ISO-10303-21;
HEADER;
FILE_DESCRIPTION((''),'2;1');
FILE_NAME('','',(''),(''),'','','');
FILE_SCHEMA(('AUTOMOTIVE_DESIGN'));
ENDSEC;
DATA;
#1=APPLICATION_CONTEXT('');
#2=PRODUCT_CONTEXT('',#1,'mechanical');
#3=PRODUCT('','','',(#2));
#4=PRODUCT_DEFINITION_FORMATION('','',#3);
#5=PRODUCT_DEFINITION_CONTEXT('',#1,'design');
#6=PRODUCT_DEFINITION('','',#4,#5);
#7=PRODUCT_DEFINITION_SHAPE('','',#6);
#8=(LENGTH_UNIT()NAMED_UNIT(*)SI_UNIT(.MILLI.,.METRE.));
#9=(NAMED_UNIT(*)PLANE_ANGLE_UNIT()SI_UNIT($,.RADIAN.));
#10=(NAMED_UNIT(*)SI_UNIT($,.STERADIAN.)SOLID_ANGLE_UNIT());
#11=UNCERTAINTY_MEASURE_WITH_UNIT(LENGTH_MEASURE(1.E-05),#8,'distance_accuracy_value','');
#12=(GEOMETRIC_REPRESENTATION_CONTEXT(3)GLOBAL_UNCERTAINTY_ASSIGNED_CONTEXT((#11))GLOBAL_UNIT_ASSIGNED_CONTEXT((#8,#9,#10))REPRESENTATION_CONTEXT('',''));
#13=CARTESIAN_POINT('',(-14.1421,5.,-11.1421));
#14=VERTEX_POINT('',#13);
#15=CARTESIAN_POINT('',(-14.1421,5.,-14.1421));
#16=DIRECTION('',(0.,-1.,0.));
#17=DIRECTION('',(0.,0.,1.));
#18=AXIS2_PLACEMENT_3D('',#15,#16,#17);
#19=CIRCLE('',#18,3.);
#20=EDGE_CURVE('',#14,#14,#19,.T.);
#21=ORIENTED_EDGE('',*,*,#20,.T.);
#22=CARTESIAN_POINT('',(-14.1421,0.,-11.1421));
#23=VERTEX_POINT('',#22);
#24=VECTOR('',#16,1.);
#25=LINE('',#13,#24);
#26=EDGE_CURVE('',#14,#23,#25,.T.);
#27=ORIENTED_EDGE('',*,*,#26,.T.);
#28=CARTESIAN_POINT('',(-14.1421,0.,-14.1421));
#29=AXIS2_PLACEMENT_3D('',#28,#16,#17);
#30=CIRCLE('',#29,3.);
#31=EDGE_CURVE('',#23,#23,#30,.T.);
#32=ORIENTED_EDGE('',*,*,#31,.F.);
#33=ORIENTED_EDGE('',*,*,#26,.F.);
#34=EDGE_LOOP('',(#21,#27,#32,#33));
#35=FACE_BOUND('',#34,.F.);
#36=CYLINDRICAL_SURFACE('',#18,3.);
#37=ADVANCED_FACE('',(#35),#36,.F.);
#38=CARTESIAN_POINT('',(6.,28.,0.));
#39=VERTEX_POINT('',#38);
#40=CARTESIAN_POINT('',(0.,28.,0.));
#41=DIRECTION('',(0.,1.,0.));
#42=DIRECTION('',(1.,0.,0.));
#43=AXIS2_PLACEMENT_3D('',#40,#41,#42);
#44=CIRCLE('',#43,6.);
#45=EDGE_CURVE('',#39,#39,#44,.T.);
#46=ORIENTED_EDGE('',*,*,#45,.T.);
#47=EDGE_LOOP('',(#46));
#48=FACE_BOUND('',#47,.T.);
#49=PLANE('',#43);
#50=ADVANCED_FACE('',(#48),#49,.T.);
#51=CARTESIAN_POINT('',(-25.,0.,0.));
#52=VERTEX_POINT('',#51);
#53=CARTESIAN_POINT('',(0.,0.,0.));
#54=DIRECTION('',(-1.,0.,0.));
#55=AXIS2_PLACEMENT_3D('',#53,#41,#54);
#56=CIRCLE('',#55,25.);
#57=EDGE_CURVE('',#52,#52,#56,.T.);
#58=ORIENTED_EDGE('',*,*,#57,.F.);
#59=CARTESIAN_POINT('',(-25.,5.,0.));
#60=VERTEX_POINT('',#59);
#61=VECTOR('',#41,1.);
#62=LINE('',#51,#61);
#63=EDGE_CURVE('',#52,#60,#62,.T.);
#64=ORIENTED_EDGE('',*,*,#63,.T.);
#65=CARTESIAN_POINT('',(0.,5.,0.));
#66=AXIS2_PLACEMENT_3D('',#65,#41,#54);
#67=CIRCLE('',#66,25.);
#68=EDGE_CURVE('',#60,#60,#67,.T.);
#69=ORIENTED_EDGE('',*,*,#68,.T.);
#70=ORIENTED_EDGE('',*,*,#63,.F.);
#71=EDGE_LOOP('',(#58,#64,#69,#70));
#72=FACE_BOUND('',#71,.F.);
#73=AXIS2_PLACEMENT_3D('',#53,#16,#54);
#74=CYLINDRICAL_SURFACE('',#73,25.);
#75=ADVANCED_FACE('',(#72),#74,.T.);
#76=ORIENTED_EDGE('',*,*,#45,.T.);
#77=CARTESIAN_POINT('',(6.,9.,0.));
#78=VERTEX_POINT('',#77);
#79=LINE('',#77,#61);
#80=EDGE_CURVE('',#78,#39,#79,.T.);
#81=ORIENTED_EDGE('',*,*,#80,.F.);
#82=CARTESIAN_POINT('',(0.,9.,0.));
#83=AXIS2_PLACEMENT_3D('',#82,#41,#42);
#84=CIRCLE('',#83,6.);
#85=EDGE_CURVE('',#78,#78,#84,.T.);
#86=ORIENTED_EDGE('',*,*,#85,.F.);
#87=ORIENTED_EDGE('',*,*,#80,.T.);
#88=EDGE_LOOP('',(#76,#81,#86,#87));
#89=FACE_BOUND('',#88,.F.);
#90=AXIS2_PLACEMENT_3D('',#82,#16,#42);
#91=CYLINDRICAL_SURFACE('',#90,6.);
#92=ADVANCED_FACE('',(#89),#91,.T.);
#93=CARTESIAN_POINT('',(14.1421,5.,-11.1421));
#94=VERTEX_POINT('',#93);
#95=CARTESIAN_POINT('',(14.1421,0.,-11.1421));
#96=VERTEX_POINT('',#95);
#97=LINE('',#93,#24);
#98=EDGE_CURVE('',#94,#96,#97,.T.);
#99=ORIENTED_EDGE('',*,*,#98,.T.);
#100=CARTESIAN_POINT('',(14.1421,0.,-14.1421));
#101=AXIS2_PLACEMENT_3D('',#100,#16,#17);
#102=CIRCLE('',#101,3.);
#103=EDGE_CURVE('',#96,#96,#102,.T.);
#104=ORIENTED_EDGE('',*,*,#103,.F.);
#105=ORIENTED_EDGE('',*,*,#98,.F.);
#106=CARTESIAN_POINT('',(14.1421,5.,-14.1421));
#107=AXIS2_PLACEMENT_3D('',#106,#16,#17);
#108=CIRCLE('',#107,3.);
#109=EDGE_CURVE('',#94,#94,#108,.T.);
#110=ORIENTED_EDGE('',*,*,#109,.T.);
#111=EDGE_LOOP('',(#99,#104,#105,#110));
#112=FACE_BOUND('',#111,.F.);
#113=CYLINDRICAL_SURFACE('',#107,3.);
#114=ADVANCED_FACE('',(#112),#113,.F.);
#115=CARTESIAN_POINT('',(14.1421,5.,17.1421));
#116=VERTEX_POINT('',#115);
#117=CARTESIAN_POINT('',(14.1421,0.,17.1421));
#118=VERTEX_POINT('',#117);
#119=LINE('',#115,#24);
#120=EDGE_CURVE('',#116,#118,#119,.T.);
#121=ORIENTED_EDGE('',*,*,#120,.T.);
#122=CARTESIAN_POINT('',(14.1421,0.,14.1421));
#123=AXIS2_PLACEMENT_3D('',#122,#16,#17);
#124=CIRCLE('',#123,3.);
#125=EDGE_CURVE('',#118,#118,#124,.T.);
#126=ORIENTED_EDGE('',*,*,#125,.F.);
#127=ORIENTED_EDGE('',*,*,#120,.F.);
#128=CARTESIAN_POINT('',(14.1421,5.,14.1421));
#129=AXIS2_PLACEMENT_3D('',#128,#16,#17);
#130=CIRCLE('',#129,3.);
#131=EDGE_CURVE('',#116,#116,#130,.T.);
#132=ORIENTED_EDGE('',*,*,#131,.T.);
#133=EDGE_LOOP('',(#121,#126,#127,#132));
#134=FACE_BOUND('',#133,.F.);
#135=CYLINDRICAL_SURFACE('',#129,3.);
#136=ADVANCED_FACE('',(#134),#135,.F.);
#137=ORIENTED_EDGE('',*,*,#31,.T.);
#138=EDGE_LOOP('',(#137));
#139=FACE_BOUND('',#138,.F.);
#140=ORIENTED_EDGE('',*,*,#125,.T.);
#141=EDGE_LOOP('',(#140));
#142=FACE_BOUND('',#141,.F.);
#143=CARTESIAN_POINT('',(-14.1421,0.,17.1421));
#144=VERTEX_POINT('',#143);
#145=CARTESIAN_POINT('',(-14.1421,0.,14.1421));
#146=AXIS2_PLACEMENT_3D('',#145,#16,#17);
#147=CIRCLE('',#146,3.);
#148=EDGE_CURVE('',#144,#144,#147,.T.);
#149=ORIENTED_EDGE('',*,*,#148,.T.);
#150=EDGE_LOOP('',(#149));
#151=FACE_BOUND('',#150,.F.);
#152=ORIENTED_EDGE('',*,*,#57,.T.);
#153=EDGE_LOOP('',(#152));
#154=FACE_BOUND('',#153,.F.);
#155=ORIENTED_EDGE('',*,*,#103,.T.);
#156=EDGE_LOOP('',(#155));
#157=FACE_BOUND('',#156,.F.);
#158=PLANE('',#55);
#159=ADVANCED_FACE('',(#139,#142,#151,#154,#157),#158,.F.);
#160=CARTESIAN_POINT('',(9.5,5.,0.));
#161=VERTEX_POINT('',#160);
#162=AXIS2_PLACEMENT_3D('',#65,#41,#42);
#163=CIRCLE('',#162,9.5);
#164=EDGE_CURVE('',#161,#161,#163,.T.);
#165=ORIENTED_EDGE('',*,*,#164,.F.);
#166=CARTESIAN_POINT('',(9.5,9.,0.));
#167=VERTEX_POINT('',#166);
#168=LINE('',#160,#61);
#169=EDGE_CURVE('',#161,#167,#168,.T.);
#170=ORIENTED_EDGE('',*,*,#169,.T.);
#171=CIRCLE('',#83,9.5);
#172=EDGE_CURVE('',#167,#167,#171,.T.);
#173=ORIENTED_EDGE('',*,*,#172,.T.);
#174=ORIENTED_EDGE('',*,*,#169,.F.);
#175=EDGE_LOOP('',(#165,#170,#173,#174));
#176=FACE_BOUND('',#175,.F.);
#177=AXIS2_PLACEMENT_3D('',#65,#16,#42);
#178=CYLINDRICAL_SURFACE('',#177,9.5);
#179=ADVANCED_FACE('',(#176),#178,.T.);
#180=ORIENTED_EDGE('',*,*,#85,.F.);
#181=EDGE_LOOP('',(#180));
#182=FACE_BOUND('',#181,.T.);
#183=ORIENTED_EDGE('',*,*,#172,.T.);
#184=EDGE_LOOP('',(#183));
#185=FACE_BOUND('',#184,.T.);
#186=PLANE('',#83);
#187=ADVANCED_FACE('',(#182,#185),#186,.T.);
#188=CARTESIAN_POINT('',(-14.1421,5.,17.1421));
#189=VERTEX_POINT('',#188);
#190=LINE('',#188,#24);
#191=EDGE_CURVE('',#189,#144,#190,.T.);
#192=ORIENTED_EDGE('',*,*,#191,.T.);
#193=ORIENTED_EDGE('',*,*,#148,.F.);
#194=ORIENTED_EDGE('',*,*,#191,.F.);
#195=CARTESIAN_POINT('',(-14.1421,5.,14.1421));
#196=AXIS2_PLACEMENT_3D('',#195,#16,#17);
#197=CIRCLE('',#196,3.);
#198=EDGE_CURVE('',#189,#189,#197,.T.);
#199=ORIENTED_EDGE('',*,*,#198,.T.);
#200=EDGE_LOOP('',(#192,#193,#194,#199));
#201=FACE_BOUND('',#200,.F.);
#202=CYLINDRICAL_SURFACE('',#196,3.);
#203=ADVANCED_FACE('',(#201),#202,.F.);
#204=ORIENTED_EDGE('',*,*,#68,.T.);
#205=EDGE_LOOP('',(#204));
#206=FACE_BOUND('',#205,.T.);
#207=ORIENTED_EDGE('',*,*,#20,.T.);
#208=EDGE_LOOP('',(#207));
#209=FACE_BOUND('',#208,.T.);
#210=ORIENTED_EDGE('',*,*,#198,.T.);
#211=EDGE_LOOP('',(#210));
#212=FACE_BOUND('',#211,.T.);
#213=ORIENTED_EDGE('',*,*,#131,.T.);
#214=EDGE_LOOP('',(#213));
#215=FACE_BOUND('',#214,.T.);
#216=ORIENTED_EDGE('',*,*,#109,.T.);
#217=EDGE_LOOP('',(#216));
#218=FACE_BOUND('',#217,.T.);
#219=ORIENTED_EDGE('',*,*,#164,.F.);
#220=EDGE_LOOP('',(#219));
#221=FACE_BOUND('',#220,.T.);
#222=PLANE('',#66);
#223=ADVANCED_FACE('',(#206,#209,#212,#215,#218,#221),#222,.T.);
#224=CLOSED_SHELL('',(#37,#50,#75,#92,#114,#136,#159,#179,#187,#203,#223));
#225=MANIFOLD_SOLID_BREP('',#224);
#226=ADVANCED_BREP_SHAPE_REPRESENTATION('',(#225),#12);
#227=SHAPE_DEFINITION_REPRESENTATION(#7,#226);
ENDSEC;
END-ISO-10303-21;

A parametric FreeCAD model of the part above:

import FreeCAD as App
import Part
import Sketcher
from FreeCAD import Vector

doc = App.newDocument("Part")
params = doc.addObject("Spreadsheet::Sheet", "Params")
for row, (alias, value) in enumerate([
    ("sketch1_diameter", "50 mm"),
    ("pad1_length", "5 mm"),
    ("sketch2_diameter", "6 mm"),
    ("hole_diameter", "6 mm"),
    ("sketch3_diameter", "19 mm"),
    ("pad2_length", "4 mm"),
    ("sketch4_diameter", "12 mm"),
    ("pad3_length", "19 mm"),
], start=1):
    params.set(f"A{row}", alias)
    params.set(f"B{row}", "=" + value)
    params.setAlias(f"B{row}", alias)

body = doc.addObject("PartDesign::Body", "Body")

sketch1 = body.newObject("Sketcher::SketchObject", "Sketch")
sketch1.AttachmentSupport = (doc.getObject("XZ_Plane"), [""])
sketch1.MapMode = "FlatFace"
sketch1.addGeometry(Part.Circle(Vector(0, 0, 0), Vector(0, 0, 1), 25), False)
sketch1.addConstraint([
    Sketcher.Constraint("Coincident", 0, 3, -1, 1),
    Sketcher.Constraint("Diameter", 0, 50.0),
])
sketch1.setExpression("Constraints[1]", "Params.sketch1_diameter")
pad1 = body.newObject("PartDesign::Pad", "Pad")
pad1.Profile = sketch1
pad1.setExpression("Length", "Params.pad1_length")
pad1.Reversed = True

sketch2 = body.newObject("Sketcher::SketchObject", "Sketch001")
sketch2.AttachmentSupport = (doc.getObject("XZ_Plane"), [""])
sketch2.MapMode = "FlatFace"
sketch2.AttachmentOffset = App.Placement(Vector(0, 0, -5), App.Rotation())
sketch2.addGeometry([
    Part.Circle(Vector(-14.1, 14.1, 0), Vector(0, 0, 1), 3),
    Part.Circle(Vector(14.1, 14.1, 0), Vector(0, 0, 1), 3),
    Part.Circle(Vector(14.1, -14.1, 0), Vector(0, 0, 1), 3),
    Part.Circle(Vector(-14.1, -14.1, 0), Vector(0, 0, 1), 3),
], False)
sketch2.addConstraint([
    Sketcher.Constraint("Equal", 0, 1),
    Sketcher.Constraint("Equal", 1, 2),
    Sketcher.Constraint("Equal", 2, 3),
    Sketcher.Constraint("Symmetric", 0, 3, 2, 3, -1, 1),
    Sketcher.Constraint("Symmetric", 1, 3, 3, 3, -1, 1),
    Sketcher.Constraint("Symmetric", 0, 3, 1, 3, -2),
    Sketcher.Constraint("Diameter", 0, 6.0),
    Sketcher.Constraint("DistanceX", 0, 3, -1, 1, 14.142),
    Sketcher.Constraint("DistanceY", -1, 1, 0, 3, 14.142),
])
sketch2.setExpression("Constraints[6]", "Params.sketch2_diameter")
doc.recompute()
hole = body.newObject("PartDesign::Hole", "Hole")
hole.Profile = sketch2
hole.ThreadType = "None"
hole.setExpression("Diameter", "Params.hole_diameter")
hole.DepthType = "ThroughAll"
hole.Reversed = True

sketch3 = body.newObject("Sketcher::SketchObject", "Sketch002")
sketch3.AttachmentSupport = (doc.getObject("XZ_Plane"), [""])
sketch3.MapMode = "FlatFace"
sketch3.AttachmentOffset = App.Placement(Vector(0, 0, -5), App.Rotation())
sketch3.addGeometry(Part.Circle(Vector(0, 0, 0), Vector(0, 0, 1), 10), False)
sketch3.addConstraint([
    Sketcher.Constraint("Coincident", 0, 3, -1, 1),
    Sketcher.Constraint("Diameter", 0, 19.0),
])
sketch3.setExpression("Constraints[1]", "Params.sketch3_diameter")
pad2 = body.newObject("PartDesign::Pad", "Pad001")
pad2.Profile = sketch3
pad2.setExpression("Length", "Params.pad2_length")
pad2.Reversed = True

sketch4 = body.newObject("Sketcher::SketchObject", "Sketch003")
sketch4.AttachmentSupport = (doc.getObject("XZ_Plane"), [""])
sketch4.MapMode = "FlatFace"
sketch4.AttachmentOffset = App.Placement(Vector(0, 0, -9), App.Rotation())
sketch4.addGeometry(Part.Circle(Vector(0, 0, 0), Vector(0, 0, 1), 6), False)
sketch4.addConstraint([
    Sketcher.Constraint("Coincident", 0, 3, -1, 1),
    Sketcher.Constraint("Diameter", 0, 12.0),
])
sketch4.setExpression("Constraints[1]", "Params.sketch4_diameter")
pad3 = body.newObject("PartDesign::Pad", "Pad002")
pad3.Profile = sketch4
pad3.setExpression("Length", "Params.pad3_length")
pad3.Reversed = True

doc.recompute()
